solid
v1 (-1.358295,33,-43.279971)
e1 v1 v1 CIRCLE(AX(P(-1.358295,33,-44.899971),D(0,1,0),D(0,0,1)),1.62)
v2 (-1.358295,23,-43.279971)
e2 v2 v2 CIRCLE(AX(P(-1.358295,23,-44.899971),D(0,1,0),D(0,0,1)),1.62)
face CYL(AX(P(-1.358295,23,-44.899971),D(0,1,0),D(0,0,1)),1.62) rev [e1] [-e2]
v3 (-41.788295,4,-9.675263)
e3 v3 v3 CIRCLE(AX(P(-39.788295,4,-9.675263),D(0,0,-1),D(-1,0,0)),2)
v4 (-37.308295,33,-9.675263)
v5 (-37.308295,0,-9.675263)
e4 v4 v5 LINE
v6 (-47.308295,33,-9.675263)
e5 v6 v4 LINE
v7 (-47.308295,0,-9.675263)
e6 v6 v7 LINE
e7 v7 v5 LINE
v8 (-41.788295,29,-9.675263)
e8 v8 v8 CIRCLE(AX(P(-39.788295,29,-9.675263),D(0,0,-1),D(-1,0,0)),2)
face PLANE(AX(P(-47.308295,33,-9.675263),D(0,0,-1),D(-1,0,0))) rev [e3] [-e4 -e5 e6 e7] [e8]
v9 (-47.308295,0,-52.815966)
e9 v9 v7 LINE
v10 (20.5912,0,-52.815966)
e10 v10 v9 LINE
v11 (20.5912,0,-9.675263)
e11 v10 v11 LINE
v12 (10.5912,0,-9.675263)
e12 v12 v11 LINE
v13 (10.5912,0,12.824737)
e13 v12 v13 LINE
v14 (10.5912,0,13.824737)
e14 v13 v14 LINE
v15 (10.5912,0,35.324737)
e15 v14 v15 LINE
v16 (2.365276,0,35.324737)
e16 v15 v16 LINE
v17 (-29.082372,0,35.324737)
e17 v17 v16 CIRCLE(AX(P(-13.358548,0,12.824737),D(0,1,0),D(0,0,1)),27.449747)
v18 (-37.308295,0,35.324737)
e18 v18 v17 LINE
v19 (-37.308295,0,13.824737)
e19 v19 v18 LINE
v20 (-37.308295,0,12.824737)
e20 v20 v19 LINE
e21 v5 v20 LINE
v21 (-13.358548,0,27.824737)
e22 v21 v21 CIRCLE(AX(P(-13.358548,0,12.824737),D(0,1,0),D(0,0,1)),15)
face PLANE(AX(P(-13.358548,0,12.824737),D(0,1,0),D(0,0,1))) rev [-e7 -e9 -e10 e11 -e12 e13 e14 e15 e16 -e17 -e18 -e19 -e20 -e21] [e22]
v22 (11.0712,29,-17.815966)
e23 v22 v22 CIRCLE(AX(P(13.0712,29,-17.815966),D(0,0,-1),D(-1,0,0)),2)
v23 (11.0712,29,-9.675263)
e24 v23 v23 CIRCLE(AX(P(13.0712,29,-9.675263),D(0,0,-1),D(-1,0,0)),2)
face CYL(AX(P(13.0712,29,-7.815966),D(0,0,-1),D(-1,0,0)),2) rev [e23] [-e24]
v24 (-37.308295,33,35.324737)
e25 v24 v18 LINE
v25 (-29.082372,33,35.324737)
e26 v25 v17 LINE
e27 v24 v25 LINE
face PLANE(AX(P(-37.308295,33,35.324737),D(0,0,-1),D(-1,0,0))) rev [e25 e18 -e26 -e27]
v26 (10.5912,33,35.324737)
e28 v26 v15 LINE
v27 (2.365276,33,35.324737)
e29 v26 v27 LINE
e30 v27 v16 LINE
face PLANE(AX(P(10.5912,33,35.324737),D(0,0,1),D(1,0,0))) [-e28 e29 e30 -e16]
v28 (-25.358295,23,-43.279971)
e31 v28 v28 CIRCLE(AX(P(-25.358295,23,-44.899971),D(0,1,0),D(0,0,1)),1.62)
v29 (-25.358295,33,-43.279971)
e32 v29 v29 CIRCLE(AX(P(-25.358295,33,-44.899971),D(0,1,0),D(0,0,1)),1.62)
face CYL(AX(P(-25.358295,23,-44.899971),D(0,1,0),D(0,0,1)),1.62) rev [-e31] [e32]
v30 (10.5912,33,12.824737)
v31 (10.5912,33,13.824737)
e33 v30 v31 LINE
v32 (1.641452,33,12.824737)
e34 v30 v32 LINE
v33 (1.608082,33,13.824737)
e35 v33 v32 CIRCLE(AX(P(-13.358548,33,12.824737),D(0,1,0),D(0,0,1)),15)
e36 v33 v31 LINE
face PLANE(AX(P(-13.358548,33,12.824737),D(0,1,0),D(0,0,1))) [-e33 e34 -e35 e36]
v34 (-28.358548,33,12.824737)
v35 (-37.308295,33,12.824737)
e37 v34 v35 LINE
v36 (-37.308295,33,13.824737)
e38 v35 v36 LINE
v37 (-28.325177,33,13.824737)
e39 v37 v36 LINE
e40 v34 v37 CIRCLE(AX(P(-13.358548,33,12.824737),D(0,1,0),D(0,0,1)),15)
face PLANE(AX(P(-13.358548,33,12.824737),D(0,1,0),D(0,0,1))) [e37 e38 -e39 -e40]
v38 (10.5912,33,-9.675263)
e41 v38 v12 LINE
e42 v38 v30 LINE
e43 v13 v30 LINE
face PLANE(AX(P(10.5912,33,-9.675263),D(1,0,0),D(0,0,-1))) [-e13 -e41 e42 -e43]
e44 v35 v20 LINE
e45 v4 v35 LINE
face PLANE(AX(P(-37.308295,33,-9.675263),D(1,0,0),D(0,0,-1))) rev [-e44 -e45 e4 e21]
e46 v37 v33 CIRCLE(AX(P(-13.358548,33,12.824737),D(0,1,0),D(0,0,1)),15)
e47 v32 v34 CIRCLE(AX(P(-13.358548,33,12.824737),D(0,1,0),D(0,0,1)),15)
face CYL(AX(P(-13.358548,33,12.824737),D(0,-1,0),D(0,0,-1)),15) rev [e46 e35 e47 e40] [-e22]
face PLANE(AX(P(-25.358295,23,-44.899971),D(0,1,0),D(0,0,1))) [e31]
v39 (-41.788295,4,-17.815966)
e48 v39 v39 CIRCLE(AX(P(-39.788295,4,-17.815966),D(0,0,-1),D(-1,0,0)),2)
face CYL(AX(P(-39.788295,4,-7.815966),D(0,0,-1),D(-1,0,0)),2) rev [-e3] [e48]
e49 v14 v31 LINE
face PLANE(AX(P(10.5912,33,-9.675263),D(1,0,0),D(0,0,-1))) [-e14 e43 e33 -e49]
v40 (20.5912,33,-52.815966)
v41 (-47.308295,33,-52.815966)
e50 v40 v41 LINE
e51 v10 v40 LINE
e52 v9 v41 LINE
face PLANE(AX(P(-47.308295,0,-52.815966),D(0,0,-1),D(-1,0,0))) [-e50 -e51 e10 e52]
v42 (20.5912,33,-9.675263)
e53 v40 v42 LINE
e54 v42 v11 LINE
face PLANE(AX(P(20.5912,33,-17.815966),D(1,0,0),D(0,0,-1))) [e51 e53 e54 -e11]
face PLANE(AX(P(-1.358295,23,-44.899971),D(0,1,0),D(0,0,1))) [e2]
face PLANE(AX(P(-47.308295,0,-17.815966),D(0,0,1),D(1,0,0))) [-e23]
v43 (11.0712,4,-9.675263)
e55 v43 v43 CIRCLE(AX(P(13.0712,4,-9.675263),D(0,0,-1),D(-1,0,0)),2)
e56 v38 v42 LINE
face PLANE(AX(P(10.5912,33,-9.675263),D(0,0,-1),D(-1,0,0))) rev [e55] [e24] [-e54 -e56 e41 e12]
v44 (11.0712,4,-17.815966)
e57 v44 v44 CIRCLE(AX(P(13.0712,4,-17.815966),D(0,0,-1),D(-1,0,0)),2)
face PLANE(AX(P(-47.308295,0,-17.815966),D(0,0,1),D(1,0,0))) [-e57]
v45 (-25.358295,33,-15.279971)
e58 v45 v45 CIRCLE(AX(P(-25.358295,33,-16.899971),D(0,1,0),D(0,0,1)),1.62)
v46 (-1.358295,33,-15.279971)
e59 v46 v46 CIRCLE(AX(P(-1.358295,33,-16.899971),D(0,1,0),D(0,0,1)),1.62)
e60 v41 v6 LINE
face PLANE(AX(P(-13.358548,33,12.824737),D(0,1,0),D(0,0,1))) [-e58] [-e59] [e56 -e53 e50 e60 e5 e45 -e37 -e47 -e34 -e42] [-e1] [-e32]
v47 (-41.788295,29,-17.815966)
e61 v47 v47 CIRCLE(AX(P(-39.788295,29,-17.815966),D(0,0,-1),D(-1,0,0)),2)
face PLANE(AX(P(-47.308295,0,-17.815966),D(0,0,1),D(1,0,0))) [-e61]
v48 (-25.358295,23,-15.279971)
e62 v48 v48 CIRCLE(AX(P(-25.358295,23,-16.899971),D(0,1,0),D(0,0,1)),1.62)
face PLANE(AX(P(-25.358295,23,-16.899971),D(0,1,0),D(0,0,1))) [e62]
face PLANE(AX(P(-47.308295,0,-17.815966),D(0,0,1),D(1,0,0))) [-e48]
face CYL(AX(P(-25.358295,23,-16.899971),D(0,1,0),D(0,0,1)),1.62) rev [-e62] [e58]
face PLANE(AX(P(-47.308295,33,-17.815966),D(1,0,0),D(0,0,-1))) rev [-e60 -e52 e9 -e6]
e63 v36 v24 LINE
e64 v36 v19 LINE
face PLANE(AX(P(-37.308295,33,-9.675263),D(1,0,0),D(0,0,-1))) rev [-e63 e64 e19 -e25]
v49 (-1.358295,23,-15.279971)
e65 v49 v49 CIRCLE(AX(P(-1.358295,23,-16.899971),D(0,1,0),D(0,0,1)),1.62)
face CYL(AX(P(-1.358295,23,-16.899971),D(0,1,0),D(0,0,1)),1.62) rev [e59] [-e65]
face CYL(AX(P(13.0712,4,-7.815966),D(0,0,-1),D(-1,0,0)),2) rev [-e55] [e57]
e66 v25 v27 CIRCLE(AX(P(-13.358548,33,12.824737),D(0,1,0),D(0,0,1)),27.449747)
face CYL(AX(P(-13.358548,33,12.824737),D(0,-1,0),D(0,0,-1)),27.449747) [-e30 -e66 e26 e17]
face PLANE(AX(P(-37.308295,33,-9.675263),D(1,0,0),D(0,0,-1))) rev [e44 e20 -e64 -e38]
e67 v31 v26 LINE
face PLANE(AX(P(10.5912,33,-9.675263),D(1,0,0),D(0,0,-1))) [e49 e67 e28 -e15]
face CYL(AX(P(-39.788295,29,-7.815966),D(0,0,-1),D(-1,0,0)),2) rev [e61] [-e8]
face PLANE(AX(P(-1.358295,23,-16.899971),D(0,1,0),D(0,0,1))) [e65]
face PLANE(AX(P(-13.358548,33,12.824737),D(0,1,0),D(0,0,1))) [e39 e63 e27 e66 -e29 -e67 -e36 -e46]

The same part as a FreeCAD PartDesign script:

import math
import FreeCAD as App
import Part
import Sketcher
from FreeCAD import Vector

doc = App.newDocument("Part")
body = doc.addObject("PartDesign::Body", "Body")

# Sketch on XZ plane
sketch1 = doc.addObject("Sketcher::SketchObject", "Sketch")
body.addObject(sketch1)
sketch1.AttachmentSupport = (doc.XZ_Plane, [""])
sketch1.MapMode = "FlatFace"
sketch1.addGeometry([
    Part.LineSegment(Vector(20.5912, -17.815966, 0), Vector(-47.308295, -17.815966, 0)),  # 0
    Part.LineSegment(Vector(-47.308295, -17.815966, 0), Vector(-47.308295, -9.675263, 0)),  # 1
    Part.LineSegment(Vector(-47.308295, -9.675263, 0), Vector(-37.308295, -9.675263, 0)),  # 2
    Part.LineSegment(Vector(-37.308295, -9.675263, 0), Vector(-37.308295, 35.324737, 0)),  # 3
    Part.LineSegment(Vector(-37.308295, 35.324737, 0), Vector(-29.082372, 35.324737, 0)),  # 4
    Part.ArcOfCircle(Part.Circle(Vector(-13.358548, 12.824737, 0), Vector(0, 0, 1), 27.449747), math.radians(55.052741), math.radians(124.947259)),  # 5
    Part.LineSegment(Vector(2.365276, 35.324737, 0), Vector(10.5912, 35.324737, 0)),  # 6
    Part.LineSegment(Vector(10.5912, 35.324737, 0), Vector(10.5912, -9.675263, 0)),  # 7
    Part.LineSegment(Vector(10.5912, -9.675263, 0), Vector(20.5912, -9.675263, 0)),  # 8
    Part.LineSegment(Vector(20.5912, -9.675263, 0), Vector(20.5912, -17.815966, 0)),  # 9
    Part.Circle(Vector(-13.358548, 12.824737, 0), Vector(0, 0, 1), 15),  # 10
], False)
sketch1.addConstraint([
    Sketcher.Constraint("Coincident", 0, 2, 1, 1),
    Sketcher.Constraint("Coincident", 1, 2, 2, 1),
    Sketcher.Constraint("Coincident", 2, 2, 3, 1),
    Sketcher.Constraint("Coincident", 3, 2, 4, 1),
    Sketcher.Constraint("Coincident", 4, 2, 5, 2),
    Sketcher.Constraint("Coincident", 5, 1, 6, 1),
    Sketcher.Constraint("Coincident", 6, 2, 7, 1),
    Sketcher.Constraint("Coincident", 7, 2, 8, 1),
    Sketcher.Constraint("Coincident", 8, 2, 9, 1),
    Sketcher.Constraint("Coincident", 9, 2, 0, 1),
    Sketcher.Constraint("Horizontal", 0),
    Sketcher.Constraint("Vertical", 1),
    Sketcher.Constraint("Horizontal", 2),
    Sketcher.Constraint("Vertical", 3),
    Sketcher.Constraint("Horizontal", 4),
    Sketcher.Constraint("Horizontal", 6),
    Sketcher.Constraint("Vertical", 7),
    Sketcher.Constraint("Horizontal", 8),
    Sketcher.Constraint("Vertical", 9),
    Sketcher.Constraint("Coincident", 10, 3, 5, 3),
    Sketcher.Constraint("Horizontal", 4, 2, 5, 1),
    Sketcher.Constraint("Horizontal", 2, 2, 7, 2),
    Sketcher.Constraint("Equal", 4, 6),
    Sketcher.Constraint("Equal", 2, 8),
    Sketcher.Constraint("Diameter", 10, 30.0),
    Sketcher.Constraint("DistanceX", 2, 1, 2, 2, 10.0),
    Sketcher.Constraint("DistanceY", 3, 1, 3, 2, 45.0),
    Sketcher.Constraint("DistanceY", 1, 2, 5, 3, 22.5),
    Sketcher.Constraint("Radius", 5, 27.449747),
    Sketcher.Constraint("DistanceX", -1, 1, 6, 2, 10.5912),
    Sketcher.Constraint("DistanceX", 0, 2, 0, 1, 67.899495),
    Sketcher.Constraint("DistanceY", 1, 1, 1, 2, 8.140704),
    Sketcher.Constraint("DistanceY", -1, 1, 5, 3, 12.824737),
])
pad1 = doc.addObject("PartDesign::Pad", "Pad")
body.addObject(pad1)
pad1.Profile = sketch1
pad1.Length = 33
pad1.Reversed = True

# Sketch on XY plane
sketch2 = doc.addObject("Sketcher::SketchObject", "Sketch001")
body.addObject(sketch2)
sketch2.AttachmentSupport = (doc.XY_Plane, [""])
sketch2.MapMode = "FlatFace"
sketch2.AttachmentOffset = App.Placement(Vector(0, 0, -17.815966), App.Rotation())
sketch2.addGeometry([
    Part.Circle(Vector(-39.788295, 4, 0), Vector(0, 0, 1), 2),
    Part.Circle(Vector(-39.788295, 29, 0), Vector(0, 0, 1), 2),
    Part.Circle(Vector(13.0712, 29, 0), Vector(0, 0, 1), 2),
    Part.Circle(Vector(13.0712, 4, 0), Vector(0, 0, 1), 2),
], False)
sketch2.addConstraint([
    Sketcher.Constraint("Equal", 0, 1),
    Sketcher.Constraint("Equal", 1, 2),
    Sketcher.Constraint("Equal", 2, 3),
    Sketcher.Constraint("Horizontal", 1, 3, 2, 3),
    Sketcher.Constraint("Horizontal", 0, 3, 3, 3),
    Sketcher.Constraint("Vertical", 0, 3, 1, 3),
    Sketcher.Constraint("Vertical", 2, 3, 3, 3),
    Sketcher.Constraint("Diameter", 0, 4.0),
    Sketcher.Constraint("DistanceY", -1, 1, 0, 3, 4.0),
    Sketcher.Constraint("DistanceY", -1, 1, 1, 3, 29.0),
    Sketcher.Constraint("DistanceX", -1, 1, 2, 3, 13.0712),
    Sketcher.Constraint("DistanceX", 0, 3, -1, 1, 39.788295),
])
pocket1 = doc.addObject("PartDesign::Pocket", "Pocket")
body.addObject(pocket1)
pocket1.Profile = sketch2
pocket1.Length = 10
pocket1.Reversed = True

# Sketch on XZ plane
sketch3 = doc.addObject("Sketcher::SketchObject", "Sketch002")
body.addObject(sketch3)
sketch3.AttachmentSupport = (doc.XZ_Plane, [""])
sketch3.MapMode = "FlatFace"
sketch3.AttachmentOffset = App.Placement(Vector(0, 0, -33), App.Rotation())
sketch3.addGeometry([
    Part.LineSegment(Vector(-47.308295, -52.815966, 0), Vector(-47.308295, -17.815966, 0)),
    Part.LineSegment(Vector(-47.308295, -17.815966, 0), Vector(20.5912, -17.815966, 0)),
    Part.LineSegment(Vector(20.5912, -17.815966, 0), Vector(20.5912, -52.815966, 0)),
    Part.LineSegment(Vector(20.5912, -52.815966, 0), Vector(-47.308295, -52.815966, 0)),
], False)
sketch3.addConstraint([
    Sketcher.Constraint("Coincident", 0, 2, 1, 1),
    Sketcher.Constraint("Coincident", 1, 2, 2, 1),
    Sketcher.Constraint("Coincident", 2, 2, 3, 1),
    Sketcher.Constraint("Coincident", 3, 2, 0, 1),
    Sketcher.Constraint("Vertical", 0),
    Sketcher.Constraint("Horizontal", 1),
    Sketcher.Constraint("Vertical", 2),
    Sketcher.Constraint("Horizontal", 3),
    Sketcher.Constraint("DistanceY", 0, 1, 0, 2, 35.0),
    Sketcher.Constraint("DistanceX", -1, 1, 1, 2, 20.5912),
    Sketcher.Constraint("DistanceX", 1, 1, 1, 2, 67.899495),
    Sketcher.Constraint("DistanceY", 0, 2, -1, 1, 17.815966),
])
pad2 = doc.addObject("PartDesign::Pad", "Pad001")
body.addObject(pad2)
pad2.Profile = sketch3
pad2.Length = 33

# Sketch on XZ plane
sketch4 = doc.addObject("Sketcher::SketchObject", "Sketch003")
body.addObject(sketch4)
sketch4.AttachmentSupport = (doc.XZ_Plane, [""])
sketch4.MapMode = "FlatFace"
sketch4.AttachmentOffset = App.Placement(Vector(0, 0, -33), App.Rotation())
sketch4.addGeometry([
    Part.Circle(Vector(-25.358295, -16.899971, 0), Vector(0, 0, 1), 1.62),
    Part.Circle(Vector(-1.358295, -16.899971, 0), Vector(0, 0, 1), 1.62),
    Part.Circle(Vector(-25.358295, -44.899971, 0), Vector(0, 0, 1), 1.62),
    Part.Circle(Vector(-1.358295, -44.899971, 0), Vector(0, 0, 1), 1.62),
], False)
sketch4.addConstraint([
    Sketcher.Constraint("Equal", 0, 1),
    Sketcher.Constraint("Equal", 1, 2),
    Sketcher.Constraint("Equal", 2, 3),
    Sketcher.Constraint("Horizontal", 0, 3, 1, 3),
    Sketcher.Constraint("Horizontal", 2, 3, 3, 3),
    Sketcher.Constraint("Vertical", 0, 3, 2, 3),
    Sketcher.Constraint("Vertical", 1, 3, 3, 3),
    Sketcher.Constraint("Diameter", 0, 3.24),
    Sketcher.Constraint("DistanceX", 0, 3, 1, 3, 24.0),
    Sketcher.Constraint("DistanceY", 2, 3, 0, 3, 28.0),
    Sketcher.Constraint("DistanceY", 0, 3, -1, 1, 16.899971),
    Sketcher.Constraint("DistanceX", 0, 3, -1, 1, 25.358295),
])
pocket2 = doc.addObject("PartDesign::Pocket", "Pocket001")
body.addObject(pocket2)
pocket2.Profile = sketch4
pocket2.Length = 10
pocket2.Reversed = True

doc.recompute()
